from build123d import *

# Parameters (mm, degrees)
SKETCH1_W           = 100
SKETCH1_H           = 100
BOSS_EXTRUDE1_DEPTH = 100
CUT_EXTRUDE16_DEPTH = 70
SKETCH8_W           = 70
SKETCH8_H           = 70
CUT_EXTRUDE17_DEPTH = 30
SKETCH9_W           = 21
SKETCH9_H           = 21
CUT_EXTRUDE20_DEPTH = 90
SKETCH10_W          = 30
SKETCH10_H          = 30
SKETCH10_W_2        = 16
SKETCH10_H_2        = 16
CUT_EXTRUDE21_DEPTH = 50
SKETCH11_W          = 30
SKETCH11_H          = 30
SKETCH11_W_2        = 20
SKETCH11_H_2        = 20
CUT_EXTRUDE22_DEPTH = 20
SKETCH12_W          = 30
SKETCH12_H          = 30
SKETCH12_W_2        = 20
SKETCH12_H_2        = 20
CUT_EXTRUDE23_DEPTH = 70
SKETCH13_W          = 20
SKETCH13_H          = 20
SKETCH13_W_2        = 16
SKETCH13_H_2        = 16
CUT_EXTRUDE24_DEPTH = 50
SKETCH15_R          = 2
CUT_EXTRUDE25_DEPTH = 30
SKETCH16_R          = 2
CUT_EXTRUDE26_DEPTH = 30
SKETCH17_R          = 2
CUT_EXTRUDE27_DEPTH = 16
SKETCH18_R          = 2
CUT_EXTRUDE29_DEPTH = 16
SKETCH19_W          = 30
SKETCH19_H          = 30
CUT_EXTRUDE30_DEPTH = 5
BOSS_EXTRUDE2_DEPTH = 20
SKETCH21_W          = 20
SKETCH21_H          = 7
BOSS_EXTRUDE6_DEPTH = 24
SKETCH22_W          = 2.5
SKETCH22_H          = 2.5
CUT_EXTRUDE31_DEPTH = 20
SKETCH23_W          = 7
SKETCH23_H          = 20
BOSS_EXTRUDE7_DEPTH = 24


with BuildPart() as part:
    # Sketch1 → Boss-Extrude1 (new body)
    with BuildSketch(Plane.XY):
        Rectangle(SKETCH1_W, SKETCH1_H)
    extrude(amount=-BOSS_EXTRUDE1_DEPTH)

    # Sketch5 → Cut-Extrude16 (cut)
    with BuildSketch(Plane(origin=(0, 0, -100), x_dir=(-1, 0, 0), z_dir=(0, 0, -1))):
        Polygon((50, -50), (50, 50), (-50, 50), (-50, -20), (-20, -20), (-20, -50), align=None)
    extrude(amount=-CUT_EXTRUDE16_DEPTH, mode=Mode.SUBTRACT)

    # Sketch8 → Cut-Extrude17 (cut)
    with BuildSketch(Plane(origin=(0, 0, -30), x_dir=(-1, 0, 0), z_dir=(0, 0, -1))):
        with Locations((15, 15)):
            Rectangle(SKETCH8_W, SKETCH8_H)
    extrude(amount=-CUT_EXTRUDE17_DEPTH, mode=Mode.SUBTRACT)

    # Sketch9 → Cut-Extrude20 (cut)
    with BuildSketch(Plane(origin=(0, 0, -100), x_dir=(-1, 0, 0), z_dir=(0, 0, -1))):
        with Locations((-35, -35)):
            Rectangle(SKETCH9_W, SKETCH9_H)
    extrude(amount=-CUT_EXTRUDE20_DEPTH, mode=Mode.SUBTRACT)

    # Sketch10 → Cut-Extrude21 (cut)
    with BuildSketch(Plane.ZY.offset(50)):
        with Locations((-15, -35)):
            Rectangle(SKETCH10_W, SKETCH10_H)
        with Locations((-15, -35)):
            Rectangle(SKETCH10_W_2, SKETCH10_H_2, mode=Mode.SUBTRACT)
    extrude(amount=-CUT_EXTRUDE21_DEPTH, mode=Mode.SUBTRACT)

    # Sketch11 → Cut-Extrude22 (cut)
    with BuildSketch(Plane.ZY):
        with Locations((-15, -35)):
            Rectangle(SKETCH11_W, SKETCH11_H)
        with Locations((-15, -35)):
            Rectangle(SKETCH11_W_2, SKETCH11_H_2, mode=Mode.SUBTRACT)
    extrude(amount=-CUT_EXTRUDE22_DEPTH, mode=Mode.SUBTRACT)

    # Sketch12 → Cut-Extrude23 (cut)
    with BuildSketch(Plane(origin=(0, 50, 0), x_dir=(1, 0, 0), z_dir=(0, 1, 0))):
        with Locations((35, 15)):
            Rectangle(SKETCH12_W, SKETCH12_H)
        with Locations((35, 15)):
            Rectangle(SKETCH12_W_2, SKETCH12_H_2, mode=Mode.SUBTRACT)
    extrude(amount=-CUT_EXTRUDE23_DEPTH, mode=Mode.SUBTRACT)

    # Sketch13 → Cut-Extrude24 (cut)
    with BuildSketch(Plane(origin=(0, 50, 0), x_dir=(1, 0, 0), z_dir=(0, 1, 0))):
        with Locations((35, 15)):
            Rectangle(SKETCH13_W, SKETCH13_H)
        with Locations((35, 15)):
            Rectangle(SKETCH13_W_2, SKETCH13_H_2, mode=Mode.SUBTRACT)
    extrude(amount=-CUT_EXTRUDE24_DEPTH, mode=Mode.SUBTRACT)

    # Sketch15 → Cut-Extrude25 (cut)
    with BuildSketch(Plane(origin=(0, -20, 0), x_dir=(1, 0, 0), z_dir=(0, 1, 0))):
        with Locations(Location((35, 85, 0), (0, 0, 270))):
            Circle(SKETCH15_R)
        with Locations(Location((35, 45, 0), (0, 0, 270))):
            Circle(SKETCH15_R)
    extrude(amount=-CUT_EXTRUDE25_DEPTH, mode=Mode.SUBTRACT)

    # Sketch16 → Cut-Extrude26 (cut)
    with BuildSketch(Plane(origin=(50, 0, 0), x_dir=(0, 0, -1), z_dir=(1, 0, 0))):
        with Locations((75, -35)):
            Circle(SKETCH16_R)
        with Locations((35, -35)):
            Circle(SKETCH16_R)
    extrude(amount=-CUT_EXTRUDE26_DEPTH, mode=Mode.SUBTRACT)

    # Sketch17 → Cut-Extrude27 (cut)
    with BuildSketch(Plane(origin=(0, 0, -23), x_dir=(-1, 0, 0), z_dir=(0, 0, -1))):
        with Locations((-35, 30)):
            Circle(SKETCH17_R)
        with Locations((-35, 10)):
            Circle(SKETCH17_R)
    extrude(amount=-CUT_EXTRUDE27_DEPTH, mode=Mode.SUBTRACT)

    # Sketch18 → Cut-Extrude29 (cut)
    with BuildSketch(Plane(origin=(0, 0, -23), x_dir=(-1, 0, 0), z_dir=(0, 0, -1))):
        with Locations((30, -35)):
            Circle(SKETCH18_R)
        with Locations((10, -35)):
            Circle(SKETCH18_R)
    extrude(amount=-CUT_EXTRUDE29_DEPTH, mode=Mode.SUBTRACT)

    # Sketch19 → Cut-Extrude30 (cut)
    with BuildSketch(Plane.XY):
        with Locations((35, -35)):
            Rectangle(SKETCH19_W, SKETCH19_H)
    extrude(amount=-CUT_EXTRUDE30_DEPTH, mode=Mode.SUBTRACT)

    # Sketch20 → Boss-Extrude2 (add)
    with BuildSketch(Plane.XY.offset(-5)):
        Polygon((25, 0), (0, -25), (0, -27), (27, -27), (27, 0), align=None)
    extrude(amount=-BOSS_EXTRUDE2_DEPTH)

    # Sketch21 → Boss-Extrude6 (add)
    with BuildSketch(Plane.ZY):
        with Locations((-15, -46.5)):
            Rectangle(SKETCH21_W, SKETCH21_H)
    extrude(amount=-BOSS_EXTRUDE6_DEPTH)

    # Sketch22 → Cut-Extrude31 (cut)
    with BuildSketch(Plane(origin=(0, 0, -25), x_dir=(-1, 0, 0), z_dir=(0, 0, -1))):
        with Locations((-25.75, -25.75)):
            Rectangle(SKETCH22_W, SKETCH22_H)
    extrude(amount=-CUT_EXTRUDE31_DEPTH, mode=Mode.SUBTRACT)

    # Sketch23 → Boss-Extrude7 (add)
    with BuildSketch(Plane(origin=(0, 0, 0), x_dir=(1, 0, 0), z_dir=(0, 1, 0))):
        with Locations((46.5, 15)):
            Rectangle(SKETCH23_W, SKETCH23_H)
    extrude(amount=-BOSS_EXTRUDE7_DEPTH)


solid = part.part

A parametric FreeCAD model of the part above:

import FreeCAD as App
import Part
import Sketcher
from FreeCAD import Vector
Q = App.Units.Quantity

doc = App.newDocument("Part")
body = doc.addObject("PartDesign::Body", "Body")

# Sketch on XY plane
sketch1 = body.newObject("Sketcher::SketchObject", "Sketch")
sketch1.AttachmentSupport = (doc.getObject("XY_Plane"), [""])
sketch1.MapMode = "FlatFace"
sketch1.addGeometry([
    Part.LineSegment(Vector(-50, 50, 0), Vector(-50, -50, 0)),
    Part.LineSegment(Vector(-50, -50, 0), Vector(50, -50, 0)),
    Part.LineSegment(Vector(50, -50, 0), Vector(50, 50, 0)),
    Part.LineSegment(Vector(50, 50, 0), Vector(-50, 50, 0)),
], False)
sketch1.addConstraint([
    Sketcher.Constraint("Coincident", 0, 2, 1, 1),
    Sketcher.Constraint("Coincident", 1, 2, 2, 1),
    Sketcher.Constraint("Coincident", 2, 2, 3, 1),
    Sketcher.Constraint("Coincident", 3, 2, 0, 1),
    Sketcher.Constraint("Vertical", 0),
    Sketcher.Constraint("Horizontal", 1),
    Sketcher.Constraint("Vertical", 2),
    Sketcher.Constraint("Horizontal", 3),
    Sketcher.Constraint("Symmetric", 0, 2, 2, 2, -1, 1),
    Sketcher.Constraint("Equal", 3, 0),
    Sketcher.Constraint("DistanceX", 1, 1, 1, 2, Q("100 mm")),
])
pad1 = body.newObject("PartDesign::Pad", "Pad")
pad1.Profile = sketch1
pad1.Length = 100
pad1.Reversed = True

# Sketch on XY plane
sketch2 = body.newObject("Sketcher::SketchObject", "Sketch001")
sketch2.AttachmentSupport = (doc.getObject("XY_Plane"), [""])
sketch2.MapMode = "FlatFace"
sketch2.AttachmentOffset = App.Placement(Vector(0, 0, -100), App.Rotation())
sketch2.addGeometry([
    Part.LineSegment(Vector(-50, -50, 0), Vector(-50, 50, 0)),  # 0
    Part.LineSegment(Vector(-50, 50, 0), Vector(50, 50, 0)),  # 1
    Part.LineSegment(Vector(50, 50, 0), Vector(50, -20, 0)),  # 2
    Part.LineSegment(Vector(50, -20, 0), Vector(20, -20, 0)),  # 3
    Part.LineSegment(Vector(20, -20, 0), Vector(20, -50, 0)),  # 4
    Part.LineSegment(Vector(20, -50, 0), Vector(-50, -50, 0)),  # 5
], False)
sketch2.addConstraint([
    Sketcher.Constraint("Coincident", 0, 2, 1, 1),
    Sketcher.Constraint("Coincident", 1, 2, 2, 1),
    Sketcher.Constraint("Coincident", 2, 2, 3, 1),
    Sketcher.Constraint("Coincident", 3, 2, 4, 1),
    Sketcher.Constraint("Coincident", 4, 2, 5, 1),
    Sketcher.Constraint("Coincident", 5, 2, 0, 1),
    Sketcher.Constraint("Vertical", 0),
    Sketcher.Constraint("Horizontal", 1),
    Sketcher.Constraint("Vertical", 2),
    Sketcher.Constraint("Horizontal", 3),
    Sketcher.Constraint("Vertical", 4),
    Sketcher.Constraint("Horizontal", 5),
    Sketcher.Constraint("Symmetric", 1, 2, 5, 2, -1, 1),
    Sketcher.Constraint("Equal", 1, 0),
    Sketcher.Constraint("Equal", 5, 2),
    Sketcher.Constraint("DistanceX", 1, 1, 1, 2, Q("100 mm")),
    Sketcher.Constraint("DistanceX", 3, 2, 3, 1, Q("30 mm")),
])
pocket1 = body.newObject("PartDesign::Pocket", "Pocket")
pocket1.Profile = sketch2
pocket1.Length = 70
pocket1.Reversed = True

# Sketch on XY plane
sketch3 = body.newObject("Sketcher::SketchObject", "Sketch002")
sketch3.AttachmentSupport = (doc.getObject("XY_Plane"), [""])
sketch3.MapMode = "FlatFace"
sketch3.AttachmentOffset = App.Placement(Vector(0, 0, -30), App.Rotation())
sketch3.addGeometry([
    Part.LineSegment(Vector(20, 50, 0), Vector(20, -20, 0)),
    Part.LineSegment(Vector(20, -20, 0), Vector(-50, -20, 0)),
    Part.LineSegment(Vector(-50, -20, 0), Vector(-50, 50, 0)),
    Part.LineSegment(Vector(-50, 50, 0), Vector(20, 50, 0)),
], False)
sketch3.addConstraint([
    Sketcher.Constraint("Coincident", 0, 2, 1, 1),
    Sketcher.Constraint("Coincident", 1, 2, 2, 1),
    Sketcher.Constraint("Coincident", 2, 2, 3, 1),
    Sketcher.Constraint("Coincident", 3, 2, 0, 1),
    Sketcher.Constraint("Vertical", 0),
    Sketcher.Constraint("Horizontal", 1),
    Sketcher.Constraint("Vertical", 2),
    Sketcher.Constraint("Horizontal", 3),
    Sketcher.Constraint("Equal", 3, 0),
    Sketcher.Constraint("DistanceX", 1, 2, 1, 1, Q("70 mm")),
    Sketcher.Constraint("DistanceX", -1, 1, 0, 2, Q("20 mm")),
    Sketcher.Constraint("DistanceY", 0, 2, -1, 1, Q("20 mm")),
])
pocket2 = body.newObject("PartDesign::Pocket", "Pocket001")
pocket2.Profile = sketch3
pocket2.Length = 30
pocket2.Reversed = True

# Sketch on XY plane
sketch4 = body.newObject("Sketcher::SketchObject", "Sketch003")
sketch4.AttachmentSupport = (doc.getObject("XY_Plane"), [""])
sketch4.MapMode = "FlatFace"
sketch4.AttachmentOffset = App.Placement(Vector(0, 0, -100), App.Rotation())
sketch4.addGeometry([
    Part.LineSegment(Vector(46, -24, 0), Vector(46, -46, 0)),
    Part.LineSegment(Vector(46, -46, 0), Vector(24, -46, 0)),
    Part.LineSegment(Vector(24, -46, 0), Vector(24, -24, 0)),
    Part.LineSegment(Vector(24, -24, 0), Vector(46, -24, 0)),
], False)
sketch4.addConstraint([
    Sketcher.Constraint("Coincident", 0, 2, 1, 1),
    Sketcher.Constraint("Coincident", 1, 2, 2, 1),
    Sketcher.Constraint("Coincident", 2, 2, 3, 1),
    Sketcher.Constraint("Coincident", 3, 2, 0, 1),
    Sketcher.Constraint("Vertical", 0),
    Sketcher.Constraint("Horizontal", 1),
    Sketcher.Constraint("Vertical", 2),
    Sketcher.Constraint("Horizontal", 3),
    Sketcher.Constraint("Equal", 3, 0),
    Sketcher.Constraint("DistanceX", 1, 2, 1, 1, Q("21 mm")),
    Sketcher.Constraint("DistanceX", -1, 1, 0, 2, Q("45.5 mm")),
    Sketcher.Constraint("DistanceY", 0, 2, -1, 1, Q("45.5 mm")),
])
pocket3 = body.newObject("PartDesign::Pocket", "Pocket002")
pocket3.Profile = sketch4
pocket3.Length = 90
pocket3.Reversed = True

# Sketch on YZ plane
sketch5 = body.newObject("Sketcher::SketchObject", "Sketch004")
sketch5.AttachmentSupport = (doc.getObject("YZ_Plane"), [""])
sketch5.MapMode = "FlatFace"
sketch5.AttachmentOffset = App.Placement(Vector(0, 0, -50), App.Rotation())
sketch5.addGeometry([
    Part.LineSegment(Vector(-20, -30, 0), Vector(-50, -30, 0)),  # 0
    Part.LineSegment(Vector(-50, -30, 0), Vector(-50, 0, 0)),  # 1
    Part.LineSegment(Vector(-50, 0, 0), Vector(-20, 0, 0)),  # 2
    Part.LineSegment(Vector(-20, 0, 0), Vector(-20, -30, 0)),  # 3
    Part.LineSegment(Vector(-43, -7, 0), Vector(-43, -23, 0)),  # 4
    Part.LineSegment(Vector(-43, -23, 0), Vector(-27, -23, 0)),  # 5
    Part.LineSegment(Vector(-27, -23, 0), Vector(-27, -7, 0)),  # 6
    Part.LineSegment(Vector(-27, -7, 0), Vector(-43, -7, 0)),  # 7
], False)
sketch5.addConstraint([
    Sketcher.Constraint("Coincident", 0, 2, 1, 1),
    Sketcher.Constraint("Coincident", 1, 2, 2, 1),
    Sketcher.Constraint("Coincident", 2, 2, 3, 1),
    Sketcher.Constraint("Coincident", 3, 2, 0, 1),
    Sketcher.Constraint("Coincident", 4, 2, 5, 1),
    Sketcher.Constraint("Coincident", 5, 2, 6, 1),
    Sketcher.Constraint("Coincident", 6, 2, 7, 1),
    Sketcher.Constraint("Coincident", 7, 2, 4, 1),
    Sketcher.Constraint("Horizontal", 0),
    Sketcher.Constraint("Vertical", 1),
    Sketcher.Constraint("Horizontal", 2),
    Sketcher.Constraint("Vertical", 3),
    Sketcher.Constraint("Vertical", 4),
    Sketcher.Constraint("Horizontal", 5),
    Sketcher.Constraint("Vertical", 6),
    Sketcher.Constraint("Horizontal", 7),
    Sketcher.Constraint("PointOnObject", 1, 2, -1),
    Sketcher.Constraint("Equal", 2, 1),
    Sketcher.Constraint("Equal", 7, 4),
    Sketcher.Constraint("DistanceX", 0, 2, 0, 1, Q("30 mm")),
    Sketcher.Constraint("DistanceX", 5, 1, 5, 2, Q("16 mm")),
    Sketcher.Constraint("DistanceX", 0, 2, -1, 1, Q("50 mm")),
    Sketcher.Constraint("DistanceX", 4, 2, -1, 1, Q("43 mm")),
    Sketcher.Constraint("DistanceY", 4, 2, -1, 1, Q("23 mm")),
])
pocket4 = body.newObject("PartDesign::Pocket", "Pocket003")
pocket4.Profile = sketch5
pocket4.Length = 50
pocket4.Reversed = True

# Sketch on YZ plane
sketch6 = body.newObject("Sketcher::SketchObject", "Sketch005")
sketch6.AttachmentSupport = (doc.getObject("YZ_Plane"), [""])
sketch6.MapMode = "FlatFace"
sketch6.addGeometry([
    Part.LineSegment(Vector(-20, -30, 0), Vector(-50, -30, 0)),  # 0
    Part.LineSegment(Vector(-50, -30, 0), Vector(-50, 0, 0)),  # 1
    Part.LineSegment(Vector(-50, 0, 0), Vector(-20, 0, 0)),  # 2
    Part.LineSegment(Vector(-20, 0, 0), Vector(-20, -30, 0)),  # 3
    Part.LineSegment(Vector(-45, -5, 0), Vector(-45, -25, 0)),  # 4
    Part.LineSegment(Vector(-45, -25, 0), Vector(-25, -25, 0)),  # 5
    Part.LineSegment(Vector(-25, -25, 0), Vector(-25, -5, 0)),  # 6
    Part.LineSegment(Vector(-25, -5, 0), Vector(-45, -5, 0)),  # 7
], False)
sketch6.addConstraint([
    Sketcher.Constraint("Coincident", 0, 2, 1, 1),
    Sketcher.Constraint("Coincident", 1, 2, 2, 1),
    Sketcher.Constraint("Coincident", 2, 2, 3, 1),
    Sketcher.Constraint("Coincident", 3, 2, 0, 1),
    Sketcher.Constraint("Coincident", 4, 2, 5, 1),
    Sketcher.Constraint("Coincident", 5, 2, 6, 1),
    Sketcher.Constraint("Coincident", 6, 2, 7, 1),
    Sketcher.Constraint("Coincident", 7, 2, 4, 1),
    Sketcher.Constraint("Horizontal", 0),
    Sketcher.Constraint("Vertical", 1),
    Sketcher.Constraint("Horizontal", 2),
    Sketcher.Constraint("Vertical", 3),
    Sketcher.Constraint("Vertical", 4),
    Sketcher.Constraint("Horizontal", 5),
    Sketcher.Constraint("Vertical", 6),
    Sketcher.Constraint("Horizontal", 7),
    Sketcher.Constraint("PointOnObject", 1, 2, -1),
    Sketcher.Constraint("Equal", 2, 1),
    Sketcher.Constraint("Equal", 7, 4),
    Sketcher.Constraint("DistanceX", 0, 2, 0, 1, Q("30 mm")),
    Sketcher.Constraint("DistanceX", 5, 1, 5, 2, Q("20 mm")),
    Sketcher.Constraint("DistanceX", 0, 2, -1, 1, Q("50 mm")),
    Sketcher.Constraint("DistanceX", 4, 2, -1, 1, Q("45 mm")),
    Sketcher.Constraint("DistanceY", 4, 2, -1, 1, Q("25 mm")),
])
pocket5 = body.newObject("PartDesign::Pocket", "Pocket004")
pocket5.Profile = sketch6
pocket5.Length = 20
pocket5.Reversed = True

# Sketch on XZ plane
sketch7 = body.newObject("Sketcher::SketchObject", "Sketch006")
sketch7.AttachmentSupport = (doc.getObject("XZ_Plane"), [""])
sketch7.MapMode = "FlatFace"
sketch7.AttachmentOffset = App.Placement(Vector(0, 0, -50), App.Rotation())
sketch7.addGeometry([
    Part.LineSegment(Vector(20, -30, 0), Vector(20, 0, 0)),  # 0
    Part.LineSegment(Vector(20, 0, 0), Vector(50, 0, 0)),  # 1
    Part.LineSegment(Vector(50, 0, 0), Vector(50, -30, 0)),  # 2
    Part.LineSegment(Vector(50, -30, 0), Vector(20, -30, 0)),  # 3
    Part.LineSegment(Vector(45, -5, 0), Vector(25, -5, 0)),  # 4
    Part.LineSegment(Vector(25, -5, 0), Vector(25, -25, 0)),  # 5
    Part.LineSegment(Vector(25, -25, 0), Vector(45, -25, 0)),  # 6
    Part.LineSegment(Vector(45, -25, 0), Vector(45, -5, 0)),  # 7
], False)
sketch7.addConstraint([
    Sketcher.Constraint("Coincident", 0, 2, 1, 1),
    Sketcher.Constraint("Coincident", 1, 2, 2, 1),
    Sketcher.Constraint("Coincident", 2, 2, 3, 1),
    Sketcher.Constraint("Coincident", 3, 2, 0, 1),
    Sketcher.Constraint("Coincident", 4, 2, 5, 1),
    Sketcher.Constraint("Coincident", 5, 2, 6, 1),
    Sketcher.Constraint("Coincident", 6, 2, 7, 1),
    Sketcher.Constraint("Coincident", 7, 2, 4, 1),
    Sketcher.Constraint("Vertical", 0),
    Sketcher.Constraint("Horizontal", 1),
    Sketcher.Constraint("Vertical", 2),
    Sketcher.Constraint("Horizontal", 3),
    Sketcher.Constraint("Horizontal", 4),
    Sketcher.Constraint("Vertical", 5),
    Sketcher.Constraint("Horizontal", 6),
    Sketcher.Constraint("Vertical", 7),
    Sketcher.Constraint("PointOnObject", 0, 2, -1),
    Sketcher.Constraint("Equal", 3, 0),
    Sketcher.Constraint("Equal", 6, 5),
    Sketcher.Constraint("DistanceX", 1, 1, 1, 2, Q("30 mm")),
    Sketcher.Constraint("DistanceX", 4, 2, 4, 1, Q("20 mm")),
    Sketcher.Constraint("DistanceX", -1, 1, 0, 2, Q("20 mm")),
    Sketcher.Constraint("DistanceX", -1, 1, 4, 2, Q("25 mm")),
    Sketcher.Constraint("DistanceY", 4, 2, -1, 1, Q("5 mm")),
])
pocket6 = body.newObject("PartDesign::Pocket", "Pocket005")
pocket6.Profile = sketch7
pocket6.Length = 70
pocket6.Reversed = True

# Sketch on XZ plane
sketch8 = body.newObject("Sketcher::SketchObject", "Sketch007")
sketch8.AttachmentSupport = (doc.getObject("XZ_Plane"), [""])
sketch8.MapMode = "FlatFace"
sketch8.AttachmentOffset = App.Placement(Vector(0, 0, -50), App.Rotation())
sketch8.addGeometry([
    Part.LineSegment(Vector(25, -25, 0), Vector(25, -5, 0)),  # 0
    Part.LineSegment(Vector(25, -5, 0), Vector(45, -5, 0)),  # 1
    Part.LineSegment(Vector(45, -5, 0), Vector(45, -25, 0)),  # 2
    Part.LineSegment(Vector(45, -25, 0), Vector(25, -25, 0)),  # 3
    Part.LineSegment(Vector(43, -7, 0), Vector(27, -7, 0)),  # 4
    Part.LineSegment(Vector(27, -7, 0), Vector(27, -23, 0)),  # 5
    Part.LineSegment(Vector(27, -23, 0), Vector(43, -23, 0)),  # 6
    Part.LineSegment(Vector(43, -23, 0), Vector(43, -7, 0)),  # 7
], False)
sketch8.addConstraint([
    Sketcher.Constraint("Coincident", 0, 2, 1, 1),
    Sketcher.Constraint("Coincident", 1, 2, 2, 1),
    Sketcher.Constraint("Coincident", 2, 2, 3, 1),
    Sketcher.Constraint("Coincident", 3, 2, 0, 1),
    Sketcher.Constraint("Coincident", 4, 2, 5, 1),
    Sketcher.Constraint("Coincident", 5, 2, 6, 1),
    Sketcher.Constraint("Coincident", 6, 2, 7, 1),
    Sketcher.Constraint("Coincident", 7, 2, 4, 1),
    Sketcher.Constraint("Vertical", 0),
    Sketcher.Constraint("Horizontal", 1),
    Sketcher.Constraint("Vertical", 2),
    Sketcher.Constraint("Horizontal", 3),
    Sketcher.Constraint("Horizontal", 4),
    Sketcher.Constraint("Vertical", 5),
    Sketcher.Constraint("Horizontal", 6),
    Sketcher.Constraint("Vertical", 7),
    Sketcher.Constraint("Equal", 3, 0),
    Sketcher.Constraint("Equal", 6, 5),
    Sketcher.Constraint("DistanceX", 1, 1, 1, 2, Q("20 mm")),
    Sketcher.Constraint("DistanceX", 4, 2, 4, 1, Q("16 mm")),
    Sketcher.Constraint("DistanceX", -1, 1, 0, 2, Q("25 mm")),
    Sketcher.Constraint("DistanceY", 0, 2, -1, 1, Q("5 mm")),
    Sketcher.Constraint("DistanceX", -1, 1, 4, 2, Q("27 mm")),
    Sketcher.Constraint("DistanceY", 4, 2, -1, 1, Q("7 mm")),
])
pocket7 = body.newObject("PartDesign::Pocket", "Pocket006")
pocket7.Profile = sketch8
pocket7.Length = 50
pocket7.Reversed = True

# Sketch on XZ plane
sketch9 = body.newObject("Sketcher::SketchObject", "Sketch008")
sketch9.AttachmentSupport = (doc.getObject("XZ_Plane"), [""])
sketch9.MapMode = "FlatFace"
sketch9.AttachmentOffset = App.Placement(Vector(0, 0, 20), App.Rotation())
sketch9.addGeometry([
    Part.Circle(Vector(35, -85, 0), Vector(0, 0, 1), 2),
    Part.Circle(Vector(35, -45, 0), Vector(0, 0, 1), 2),
], False)
sketch9.addConstraint([
    Sketcher.Constraint("Equal", 0, 1),
    Sketcher.Constraint("Vertical", 0, 3, 1, 3),
    Sketcher.Constraint("Diameter", 0, Q("4 mm")),
    Sketcher.Constraint("DistanceX", -1, 1, 0, 3, Q("35 mm")),
    Sketcher.Constraint("DistanceY", 0, 3, -1, 1, Q("85 mm")),
    Sketcher.Constraint("DistanceY", 1, 3, -1, 1, Q("45 mm")),
])
pocket8 = body.newObject("PartDesign::Pocket", "Pocket007")
pocket8.Profile = sketch9
pocket8.Length = 30
pocket8.Reversed = True

# Sketch on YZ plane
sketch10 = body.newObject("Sketcher::SketchObject", "Sketch009")
sketch10.AttachmentSupport = (doc.getObject("YZ_Plane"), [""])
sketch10.MapMode = "FlatFace"
sketch10.AttachmentOffset = App.Placement(Vector(0, 0, 50), App.Rotation())
sketch10.addGeometry([
    Part.Circle(Vector(-35, -75, 0), Vector(0, 0, 1), 2),
    Part.Circle(Vector(-35, -35, 0), Vector(0, 0, 1), 2),
], False)
sketch10.addConstraint([
    Sketcher.Constraint("Equal", 0, 1),
    Sketcher.Constraint("Vertical", 0, 3, 1, 3),
    Sketcher.Constraint("Diameter", 0, Q("4 mm")),
    Sketcher.Constraint("DistanceX", 0, 3, -1, 1, Q("35 mm")),
    Sketcher.Constraint("DistanceY", 0, 3, -1, 1, Q("75 mm")),
    Sketcher.Constraint("DistanceY", 1, 3, -1, 1, Q("35 mm")),
])
pocket9 = body.newObject("PartDesign::Pocket", "Pocket008")
pocket9.Profile = sketch10
pocket9.Length = 30

# Sketch on XY plane
sketch11 = body.newObject("Sketcher::SketchObject", "Sketch010")
sketch11.AttachmentSupport = (doc.getObject("XY_Plane"), [""])
sketch11.MapMode = "FlatFace"
sketch11.AttachmentOffset = App.Placement(Vector(0, 0, -23), App.Rotation())
sketch11.addGeometry([
    Part.Circle(Vector(35, 30, 0), Vector(0, 0, 1), 2),
    Part.Circle(Vector(35, 10, 0), Vector(0, 0, 1), 2),
], False)
sketch11.addConstraint([
    Sketcher.Constraint("Equal", 0, 1),
    Sketcher.Constraint("Vertical", 0, 3, 1, 3),
    Sketcher.Constraint("Diameter", 0, Q("4 mm")),
    Sketcher.Constraint("DistanceX", -1, 1, 0, 3, Q("35 mm")),
    Sketcher.Constraint("DistanceY", -1, 1, 0, 3, Q("30 mm")),
    Sketcher.Constraint("DistanceY", -1, 1, 1, 3, Q("10 mm")),
])
pocket10 = body.newObject("PartDesign::Pocket", "Pocket009")
pocket10.Profile = sketch11
pocket10.Length = 16
pocket10.Reversed = True

# Sketch on XY plane
sketch12 = body.newObject("Sketcher::SketchObject", "Sketch011")
sketch12.AttachmentSupport = (doc.getObject("XY_Plane"), [""])
sketch12.MapMode = "FlatFace"
sketch12.AttachmentOffset = App.Placement(Vector(0, 0, -23), App.Rotation())
sketch12.addGeometry([
    Part.Circle(Vector(-30, -35, 0), Vector(0, 0, 1), 2),
    Part.Circle(Vector(-10, -35, 0), Vector(0, 0, 1), 2),
], False)
sketch12.addConstraint([
    Sketcher.Constraint("Equal", 0, 1),
    Sketcher.Constraint("Horizontal", 0, 3, 1, 3),
    Sketcher.Constraint("Diameter", 0, Q("4 mm")),
    Sketcher.Constraint("DistanceX", 0, 3, -1, 1, Q("30 mm")),
    Sketcher.Constraint("DistanceY", 0, 3, -1, 1, Q("35 mm")),
    Sketcher.Constraint("DistanceX", 1, 3, -1, 1, Q("10 mm")),
])
pocket11 = body.newObject("PartDesign::Pocket", "Pocket010")
pocket11.Profile = sketch12
pocket11.Length = 16
pocket11.Reversed = True

# Sketch on XY plane
sketch13 = body.newObject("Sketcher::SketchObject", "Sketch012")
sketch13.AttachmentSupport = (doc.getObject("XY_Plane"), [""])
sketch13.MapMode = "FlatFace"
sketch13.addGeometry([
    Part.LineSegment(Vector(20, -20, 0), Vector(20, -50, 0)),
    Part.LineSegment(Vector(20, -50, 0), Vector(50, -50, 0)),
    Part.LineSegment(Vector(50, -50, 0), Vector(50, -20, 0)),
    Part.LineSegment(Vector(50, -20, 0), Vector(20, -20, 0)),
], False)
sketch13.addConstraint([
    Sketcher.Constraint("Coincident", 0, 2, 1, 1),
    Sketcher.Constraint("Coincident", 1, 2, 2, 1),
    Sketcher.Constraint("Coincident", 2, 2, 3, 1),
    Sketcher.Constraint("Coincident", 3, 2, 0, 1),
    Sketcher.Constraint("Vertical", 0),
    Sketcher.Constraint("Horizontal", 1),
    Sketcher.Constraint("Vertical", 2),
    Sketcher.Constraint("Horizontal", 3),
    Sketcher.Constraint("Equal", 3, 0),
    Sketcher.Constraint("DistanceX", 1, 1, 1, 2, Q("30 mm")),
    Sketcher.Constraint("DistanceX", -1, 1, 0, 2, Q("20 mm")),
    Sketcher.Constraint("DistanceY", 0, 2, -1, 1, Q("50 mm")),
])
pocket12 = body.newObject("PartDesign::Pocket", "Pocket011")
pocket12.Profile = sketch13
pocket12.Length = 5

# Sketch on XY plane
sketch14 = body.newObject("Sketcher::SketchObject", "Sketch013")
sketch14.AttachmentSupport = (doc.getObject("XY_Plane"), [""])
sketch14.MapMode = "FlatFace"
sketch14.AttachmentOffset = App.Placement(Vector(0, 0, -5), App.Rotation())
sketch14.addGeometry([
    Part.LineSegment(Vector(25, 0, 0), Vector(0, -25, 0)),  # 0
    Part.LineSegment(Vector(0, -25, 0), Vector(0, -27, 0)),  # 1
    Part.LineSegment(Vector(0, -27, 0), Vector(27, -27, 0)),  # 2
    Part.LineSegment(Vector(27, -27, 0), Vector(27, 0, 0)),  # 3
    Part.LineSegment(Vector(27, 0, 0), Vector(25, 0, 0)),  # 4
], False)
sketch14.addConstraint([
    Sketcher.Constraint("Coincident", 0, 2, 1, 1),
    Sketcher.Constraint("Coincident", 1, 2, 2, 1),
    Sketcher.Constraint("Coincident", 2, 2, 3, 1),
    Sketcher.Constraint("Coincident", 3, 2, 4, 1),
    Sketcher.Constraint("Coincident", 4, 2, 0, 1),
    Sketcher.Constraint("Vertical", 1),
    Sketcher.Constraint("Horizontal", 2),
    Sketcher.Constraint("Vertical", 3),
    Sketcher.Constraint("Horizontal", 4),
    Sketcher.Constraint("PointOnObject", 0, 2, -2),
    Sketcher.Constraint("PointOnObject", 3, 2, -1),
    Sketcher.Constraint("Equal", 4, 1),
    Sketcher.Constraint("Equal", 2, 3),
    Sketcher.Constraint("DistanceX", 2, 1, 2, 2, Q("27 mm")),
    Sketcher.Constraint("DistanceX", 4, 2, 4, 1, Q("2 mm")),
])
pad2 = body.newObject("PartDesign::Pad", "Pad001")
pad2.Profile = sketch14
pad2.Length = 20
pad2.Reversed = True

# Sketch on YZ plane
sketch15 = body.newObject("Sketcher::SketchObject", "Sketch014")
sketch15.AttachmentSupport = (doc.getObject("YZ_Plane"), [""])
sketch15.MapMode = "FlatFace"
sketch15.addGeometry([
    Part.LineSegment(Vector(-43, -25, 0), Vector(-50, -25, 0)),
    Part.LineSegment(Vector(-50, -25, 0), Vector(-50, -5, 0)),
    Part.LineSegment(Vector(-50, -5, 0), Vector(-43, -5, 0)),
    Part.LineSegment(Vector(-43, -5, 0), Vector(-43, -25, 0)),
], False)
sketch15.addConstraint([
    Sketcher.Constraint("Coincident", 0, 2, 1, 1),
    Sketcher.Constraint("Coincident", 1, 2, 2, 1),
    Sketcher.Constraint("Coincident", 2, 2, 3, 1),
    Sketcher.Constraint("Coincident", 3, 2, 0, 1),
    Sketcher.Constraint("Horizontal", 0),
    Sketcher.Constraint("Vertical", 1),
    Sketcher.Constraint("Horizontal", 2),
    Sketcher.Constraint("Vertical", 3),
    Sketcher.Constraint("DistanceX", 0, 2, 0, 1, Q("7 mm")),
    Sketcher.Constraint("DistanceY", 1, 1, 1, 2, Q("20 mm")),
    Sketcher.Constraint("DistanceX", 0, 2, -1, 1, Q("50 mm")),
    Sketcher.Constraint("DistanceY", 0, 2, -1, 1, Q("25 mm")),
])
pad3 = body.newObject("PartDesign::Pad", "Pad002")
pad3.Profile = sketch15
pad3.Length = 24

# Sketch on XY plane
sketch16 = body.newObject("Sketcher::SketchObject", "Sketch015")
sketch16.AttachmentSupport = (doc.getObject("XY_Plane"), [""])
sketch16.MapMode = "FlatFace"
sketch16.AttachmentOffset = App.Placement(Vector(0, 0, -25), App.Rotation())
sketch16.addGeometry([
    Part.LineSegment(Vector(27, -24.5, 0), Vector(27, -27, 0)),
    Part.LineSegment(Vector(27, -27, 0), Vector(24.5, -27, 0)),
    Part.LineSegment(Vector(24.5, -27, 0), Vector(24.5, -24.5, 0)),
    Part.LineSegment(Vector(24.5, -24.5, 0), Vector(27, -24.5, 0)),
], False)
sketch16.addConstraint([
    Sketcher.Constraint("Coincident", 0, 2, 1, 1),
    Sketcher.Constraint("Coincident", 1, 2, 2, 1),
    Sketcher.Constraint("Coincident", 2, 2, 3, 1),
    Sketcher.Constraint("Coincident", 3, 2, 0, 1),
    Sketcher.Constraint("Vertical", 0),
    Sketcher.Constraint("Horizontal", 1),
    Sketcher.Constraint("Vertical", 2),
    Sketcher.Constraint("Horizontal", 3),
    Sketcher.Constraint("Equal", 3, 0),
    Sketcher.Constraint("DistanceX", 1, 2, 1, 1, Q("2.5 mm")),
    Sketcher.Constraint("DistanceX", -1, 1, 0, 2, Q("27 mm")),
    Sketcher.Constraint("DistanceY", 0, 2, -1, 1, Q("27 mm")),
])
pocket13 = body.newObject("PartDesign::Pocket", "Pocket012")
pocket13.Profile = sketch16
pocket13.Length = 20
pocket13.Reversed = True

# Sketch on XZ plane
sketch17 = body.newObject("Sketcher::SketchObject", "Sketch016")
sketch17.AttachmentSupport = (doc.getObject("XZ_Plane"), [""])
sketch17.MapMode = "FlatFace"
sketch17.addGeometry([
    Part.LineSegment(Vector(43, -25, 0), Vector(43, -5, 0)),
    Part.LineSegment(Vector(43, -5, 0), Vector(50, -5, 0)),
    Part.LineSegment(Vector(50, -5, 0), Vector(50, -25, 0)),
    Part.LineSegment(Vector(50, -25, 0), Vector(43, -25, 0)),
], False)
sketch17.addConstraint([
    Sketcher.Constraint("Coincident", 0, 2, 1, 1),
    Sketcher.Constraint("Coincident", 1, 2, 2, 1),
    Sketcher.Constraint("Coincident", 2, 2, 3, 1),
    Sketcher.Constraint("Coincident", 3, 2, 0, 1),
    Sketcher.Constraint("Vertical", 0),
    Sketcher.Constraint("Horizontal", 1),
    Sketcher.Constraint("Vertical", 2),
    Sketcher.Constraint("Horizontal", 3),
    Sketcher.Constraint("DistanceX", 1, 1, 1, 2, Q("7 mm")),
    Sketcher.Constraint("DistanceY", 0, 1, 0, 2, Q("20 mm")),
    Sketcher.Constraint("DistanceX", -1, 1, 0, 2, Q("43 mm")),
    Sketcher.Constraint("DistanceY", 0, 2, -1, 1, Q("5 mm")),
])
pad4 = body.newObject("PartDesign::Pad", "Pad003")
pad4.Profile = sketch17
pad4.Length = 24

doc.recompute()
